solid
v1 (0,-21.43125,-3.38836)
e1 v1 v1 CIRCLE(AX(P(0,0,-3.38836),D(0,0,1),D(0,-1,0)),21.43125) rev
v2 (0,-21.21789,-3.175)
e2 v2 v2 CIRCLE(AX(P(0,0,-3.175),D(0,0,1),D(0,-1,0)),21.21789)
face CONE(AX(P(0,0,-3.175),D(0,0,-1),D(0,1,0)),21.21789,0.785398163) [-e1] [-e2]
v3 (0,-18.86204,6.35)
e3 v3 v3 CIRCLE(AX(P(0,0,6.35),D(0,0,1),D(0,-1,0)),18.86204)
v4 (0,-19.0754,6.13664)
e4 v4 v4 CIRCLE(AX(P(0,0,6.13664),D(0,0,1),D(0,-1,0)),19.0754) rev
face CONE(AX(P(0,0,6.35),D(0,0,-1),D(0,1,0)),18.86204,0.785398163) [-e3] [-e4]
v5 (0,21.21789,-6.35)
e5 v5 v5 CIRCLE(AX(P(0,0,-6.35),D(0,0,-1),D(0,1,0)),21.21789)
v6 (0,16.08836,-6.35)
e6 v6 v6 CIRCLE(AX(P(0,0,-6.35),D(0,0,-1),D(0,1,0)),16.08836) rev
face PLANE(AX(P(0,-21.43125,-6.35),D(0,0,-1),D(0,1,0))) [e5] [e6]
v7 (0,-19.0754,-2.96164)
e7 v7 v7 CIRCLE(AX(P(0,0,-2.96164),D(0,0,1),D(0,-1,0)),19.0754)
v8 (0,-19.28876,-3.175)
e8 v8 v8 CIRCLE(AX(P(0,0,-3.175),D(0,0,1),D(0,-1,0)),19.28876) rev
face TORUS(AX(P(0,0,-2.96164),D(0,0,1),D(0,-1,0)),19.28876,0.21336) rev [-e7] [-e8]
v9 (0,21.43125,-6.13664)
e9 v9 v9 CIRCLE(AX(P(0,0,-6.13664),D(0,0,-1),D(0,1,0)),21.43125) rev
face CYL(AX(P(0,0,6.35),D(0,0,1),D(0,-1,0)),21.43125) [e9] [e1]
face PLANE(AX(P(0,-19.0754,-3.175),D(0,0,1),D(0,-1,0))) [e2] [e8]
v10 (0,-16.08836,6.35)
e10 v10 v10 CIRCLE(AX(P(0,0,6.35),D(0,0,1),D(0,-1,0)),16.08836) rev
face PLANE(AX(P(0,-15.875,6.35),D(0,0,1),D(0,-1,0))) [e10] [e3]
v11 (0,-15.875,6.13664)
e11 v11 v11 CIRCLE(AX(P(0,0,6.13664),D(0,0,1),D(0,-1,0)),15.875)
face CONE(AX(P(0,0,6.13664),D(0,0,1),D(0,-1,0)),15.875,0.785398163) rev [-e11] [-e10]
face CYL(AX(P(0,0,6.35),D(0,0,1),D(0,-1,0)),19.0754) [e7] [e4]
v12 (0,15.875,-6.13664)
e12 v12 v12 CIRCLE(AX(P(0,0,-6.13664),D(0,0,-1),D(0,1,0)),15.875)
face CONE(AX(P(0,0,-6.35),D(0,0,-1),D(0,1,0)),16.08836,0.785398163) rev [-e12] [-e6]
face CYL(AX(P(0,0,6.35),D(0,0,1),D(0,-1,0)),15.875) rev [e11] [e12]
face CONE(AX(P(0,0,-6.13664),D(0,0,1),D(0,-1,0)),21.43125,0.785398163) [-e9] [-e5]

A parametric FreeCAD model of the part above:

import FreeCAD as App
import Part
import Sketcher

V = App.Vector
Q = App.Units.Quantity


def edges_at(feature, points):
    """Names of the edges that pass closest to the given points."""
    edges = feature.Shape.Edges
    near = lambda p: min(range(len(edges)), key=lambda i: edges[i].distToShape(Part.Vertex(*p))[0])
    return sorted({f"Edge{near(p) + 1}" for p in points})

doc = App.newDocument("Part")
body = doc.addObject("PartDesign::Body", "Body")

sketch1 = body.newObject("Sketcher::SketchObject", "Sketch")
sketch1.AttachmentSupport = (doc.getObject("YZ_Plane"), [""])
sketch1.MapMode = "FlatFace"
sketch1.addGeometry(Part.LineSegment(V(-21.4, -3.2, 0), V(-21.4, -6.3, 0)), False)
sketch1.addGeometry(Part.LineSegment(V(-21.4, -6.3, 0), V(-15.9, -6.3, 0)), False)
sketch1.addGeometry(Part.LineSegment(V(-15.9, -6.3, 0), V(-15.9, 6.3, 0)), False)
sketch1.addGeometry(Part.LineSegment(V(-15.9, 6.3, 0), V(-19.1, 6.3, 0)), False)
sketch1.addGeometry(Part.LineSegment(V(-19.1, 6.3, 0), V(-19.1, -3.2, 0)), False)
sketch1.addGeometry(Part.LineSegment(V(-19.1, -3.2, 0), V(-21.4, -3.2, 0)), False)
sketch1.addConstraint(Sketcher.Constraint("Coincident", 0, 2, 1, 1))
sketch1.addConstraint(Sketcher.Constraint("Coincident", 1, 2, 2, 1))
sketch1.addConstraint(Sketcher.Constraint("Coincident", 2, 2, 3, 1))
sketch1.addConstraint(Sketcher.Constraint("Coincident", 3, 2, 4, 1))
sketch1.addConstraint(Sketcher.Constraint("Coincident", 4, 2, 5, 1))
sketch1.addConstraint(Sketcher.Constraint("Coincident", 5, 2, 0, 1))
sketch1.addConstraint(Sketcher.Constraint("Vertical", 0))
sketch1.addConstraint(Sketcher.Constraint("Horizontal", 1))
sketch1.addConstraint(Sketcher.Constraint("Vertical", 2))
sketch1.addConstraint(Sketcher.Constraint("Horizontal", 3))
sketch1.addConstraint(Sketcher.Constraint("Vertical", 4))
sketch1.addConstraint(Sketcher.Constraint("Horizontal", 5))
sketch1.addConstraint(Sketcher.Constraint("DistanceY", 2, 1, 2, 2, Q("0.5 in")))
sketch1.addConstraint(Sketcher.Constraint("DistanceX", 1, 1, 1, 2, Q("0.21875 in")))
sketch1.addConstraint(Sketcher.Constraint("DistanceX", 3, 2, 3, 1, Q("0.126 in")))
sketch1.addConstraint(Sketcher.Constraint("DistanceY", 0, 2, 0, 1, Q("0.125 in")))
sketch1.addConstraint(Sketcher.Constraint("DistanceY", 0, 2, -1, 1, Q("0.25 in")))
sketch1.addConstraint(Sketcher.Constraint("DistanceX", 0, 2, -1, 1, Q("0.84375 in")))
revolution = body.newObject("PartDesign::Revolution", "Revolution")
revolution.Profile = sketch1
revolution.ReferenceAxis = (sketch1, ["V_Axis"])
revolution.Angle = 360
doc.recompute()

chamfer = body.newObject("PartDesign::Chamfer", "Chamfer")
chamfer.Base = (revolution, edges_at(revolution, [
    (0, 19.075, 6.35),
    (0, 15.875, 6.35),
    (0, 15.875, -6.35),
    (0, 21.431, -6.35),
    (0, 21.431, -3.175),
]))
chamfer.Size = Q("0.0084 in")
doc.recompute()

fillet = body.newObject("PartDesign::Fillet", "Fillet")
fillet.Base = (chamfer, edges_at(chamfer, [(0, 19.075, -3.175)]))
fillet.Radius = Q("0.0084 in")

doc.recompute()
